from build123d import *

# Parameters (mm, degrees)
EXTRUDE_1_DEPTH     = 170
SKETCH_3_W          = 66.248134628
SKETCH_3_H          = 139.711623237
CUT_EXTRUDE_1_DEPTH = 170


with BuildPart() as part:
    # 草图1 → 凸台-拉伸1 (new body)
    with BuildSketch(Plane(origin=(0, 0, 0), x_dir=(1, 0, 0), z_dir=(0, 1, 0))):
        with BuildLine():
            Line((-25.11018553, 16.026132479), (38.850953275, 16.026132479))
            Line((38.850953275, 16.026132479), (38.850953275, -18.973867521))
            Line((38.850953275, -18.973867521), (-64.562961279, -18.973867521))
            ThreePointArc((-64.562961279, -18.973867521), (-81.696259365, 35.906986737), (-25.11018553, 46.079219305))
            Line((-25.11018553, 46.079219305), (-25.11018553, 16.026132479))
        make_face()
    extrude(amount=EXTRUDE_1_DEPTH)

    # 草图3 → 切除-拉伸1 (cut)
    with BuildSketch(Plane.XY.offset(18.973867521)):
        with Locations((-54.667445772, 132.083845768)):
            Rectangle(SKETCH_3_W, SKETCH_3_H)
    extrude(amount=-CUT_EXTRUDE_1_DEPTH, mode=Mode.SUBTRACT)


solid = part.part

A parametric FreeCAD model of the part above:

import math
import FreeCAD as App
import Part
import Sketcher
from FreeCAD import Vector
Q = App.Units.Quantity


def add_polygon(sketch, points):
    """Adds a closed chain of lines whose ends are joined by coincident constraints."""
    first, n = sketch.GeometryCount, len(points)
    for a, b in zip(points, points[1:] + points[:1]):
        sketch.addGeometry(Part.LineSegment(App.Vector(*a, 0), App.Vector(*b, 0)), False)
    for i in range(n):
        sketch.addConstraint(Sketcher.Constraint("Coincident", first + i, 2, first + (i + 1) % n, 1))

doc = App.newDocument("Part")
params = doc.addObject("Spreadsheet::Sheet", "Params")
for row, (alias, value) in enumerate([
    ("sketch1_height", "35 mm"),
    ("pad1_length", "170 mm"),
    ("pocket1_length", "170 mm"),
], start=1):
    params.set(f"A{row}", alias)
    params.set(f"B{row}", "=" + value)
    params.setAlias(f"B{row}", alias)

body = doc.addObject("PartDesign::Body", "Body")

# Sketch on XZ plane
sketch1 = body.newObject("Sketcher::SketchObject", "Sketch")
sketch1.AttachmentSupport = (doc.getObject("XZ_Plane"), [""])
sketch1.MapMode = "FlatFace"
sketch1.addGeometry(Part.LineSegment(Vector(39, -16, 0), Vector(-25, -16, 0)), False)
sketch1.addGeometry(Part.LineSegment(Vector(-25, -16, 0), Vector(-25, -46, 0)), False)
sketch1.addGeometry(Part.ArcOfCircle(Part.Circle(Vector(-49, -16, 0), Vector(0, 0, 1), 38), math.radians(114), math.radians(308)), False)
sketch1.addGeometry(Part.LineSegment(Vector(-65, 19, 0), Vector(39, 19, 0)), False)
sketch1.addGeometry(Part.LineSegment(Vector(39, 19, 0), Vector(39, -16, 0)), False)
sketch1.addConstraint(Sketcher.Constraint("Coincident", 0, 2, 1, 1))
sketch1.addConstraint(Sketcher.Constraint("Coincident", 1, 2, 2, 2))
sketch1.addConstraint(Sketcher.Constraint("Coincident", 2, 1, 3, 1))
sketch1.addConstraint(Sketcher.Constraint("Coincident", 3, 2, 4, 1))
sketch1.addConstraint(Sketcher.Constraint("Coincident", 4, 2, 0, 1))
sketch1.addConstraint(Sketcher.Constraint("Horizontal", 0))
sketch1.addConstraint(Sketcher.Constraint("Vertical", 1))
sketch1.addConstraint(Sketcher.Constraint("Horizontal", 3))
sketch1.addConstraint(Sketcher.Constraint("Vertical", 4))
sketch1.addConstraint(Sketcher.Constraint("Horizontal", 2, 3, 0, 2))
sketch1.addConstraint(Sketcher.Constraint("DistanceY", 4, 2, 4, 1, Q("35 mm")))
sketch1.addConstraint(Sketcher.Constraint("Radius", 2, Q("38.338729 mm")))
sketch1.addConstraint(Sketcher.Constraint("DistanceX", 0, 2, 0, 1, Q("63.961139 mm")))
sketch1.addConstraint(Sketcher.Constraint("DistanceX", 3, 1, 3, 2, Q("103.413915 mm")))
sketch1.addConstraint(Sketcher.Constraint("DistanceX", 2, 3, -1, 1, Q("48.915019 mm")))
sketch1.addConstraint(Sketcher.Constraint("DistanceY", 1, 2, -1, 1, Q("46.079219 mm")))
sketch1.setExpression("Constraints[10]", "Params.sketch1_height")
pad1 = body.newObject("PartDesign::Pad", "Pad")
pad1.Profile = sketch1
pad1.setExpression("Length", "Params.pad1_length")
pad1.Reversed = True

# Sketch on XY plane
sketch2 = body.newObject("Sketcher::SketchObject", "Sketch001")
sketch2.AttachmentSupport = (doc.getObject("XY_Plane"), [""])
sketch2.MapMode = "FlatFace"
sketch2.AttachmentOffset = App.Placement(Vector(0, 0, 18.973868), App.Rotation())
add_polygon(sketch2, [(-88, 202), (-88, 62), (-22, 62), (-22, 202)])  # lines 0-3
sketch2.addConstraint(Sketcher.Constraint("Vertical", 0))
sketch2.addConstraint(Sketcher.Constraint("Horizontal", 1))
sketch2.addConstraint(Sketcher.Constraint("Vertical", 2))
sketch2.addConstraint(Sketcher.Constraint("Horizontal", 3))
sketch2.addConstraint(Sketcher.Constraint("DistanceX", 1, 1, 1, 2, Q("66.248135 mm")))
sketch2.addConstraint(Sketcher.Constraint("DistanceY", 0, 2, 0, 1, Q("139.711623 mm")))
sketch2.addConstraint(Sketcher.Constraint("DistanceX", 1, 2, -1, 1, Q("21.543378 mm")))
sketch2.addConstraint(Sketcher.Constraint("DistanceY", -1, 1, 0, 2, Q("62.228034 mm")))
pocket1 = body.newObject("PartDesign::Pocket", "Pocket")
pocket1.Profile = sketch2
pocket1.setExpression("Length", "Params.pocket1_length")

doc.recompute()
